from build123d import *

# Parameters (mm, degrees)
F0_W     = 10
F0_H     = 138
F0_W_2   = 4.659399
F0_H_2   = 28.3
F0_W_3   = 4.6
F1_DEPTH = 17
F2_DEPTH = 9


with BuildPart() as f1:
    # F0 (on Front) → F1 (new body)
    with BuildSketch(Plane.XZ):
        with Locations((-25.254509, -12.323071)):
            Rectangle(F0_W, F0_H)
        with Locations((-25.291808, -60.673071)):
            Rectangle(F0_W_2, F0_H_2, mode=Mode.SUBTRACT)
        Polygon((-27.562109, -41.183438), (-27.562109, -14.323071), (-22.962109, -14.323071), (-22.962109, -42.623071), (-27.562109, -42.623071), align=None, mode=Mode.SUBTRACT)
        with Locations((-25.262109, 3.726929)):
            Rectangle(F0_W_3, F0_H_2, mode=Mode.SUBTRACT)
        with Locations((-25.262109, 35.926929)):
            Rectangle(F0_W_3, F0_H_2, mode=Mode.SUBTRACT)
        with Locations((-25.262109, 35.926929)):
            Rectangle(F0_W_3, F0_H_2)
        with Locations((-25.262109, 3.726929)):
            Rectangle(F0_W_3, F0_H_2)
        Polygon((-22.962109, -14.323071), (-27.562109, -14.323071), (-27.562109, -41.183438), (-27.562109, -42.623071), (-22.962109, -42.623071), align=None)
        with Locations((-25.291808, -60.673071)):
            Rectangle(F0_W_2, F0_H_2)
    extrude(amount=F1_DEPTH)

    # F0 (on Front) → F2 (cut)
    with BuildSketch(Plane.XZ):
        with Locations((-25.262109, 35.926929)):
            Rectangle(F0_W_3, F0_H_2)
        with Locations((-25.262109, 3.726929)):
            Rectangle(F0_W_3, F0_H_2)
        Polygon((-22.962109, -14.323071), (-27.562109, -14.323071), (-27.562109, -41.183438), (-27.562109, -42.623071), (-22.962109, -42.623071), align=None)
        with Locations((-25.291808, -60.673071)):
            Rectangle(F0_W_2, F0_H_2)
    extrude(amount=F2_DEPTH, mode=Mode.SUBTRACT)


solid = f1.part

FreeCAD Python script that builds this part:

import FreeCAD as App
import Part
import Sketcher

doc = App.newDocument("Part")
body = doc.addObject("PartDesign::Body", "Body")

# Sketch on XZ plane
sketch1 = doc.addObject("Sketcher::SketchObject", "Sketch")
body.addObject(sketch1)
sketch1.AttachmentSupport = (doc.XZ_Plane, [""])
sketch1.MapMode = "FlatFace"
sketch1.addGeometry(Part.LineSegment(App.Vector(-30, 57, 0), App.Vector(-30, -81, 0)), False)
sketch1.addGeometry(Part.LineSegment(App.Vector(-30, -81, 0), App.Vector(-20, -81, 0)), False)
sketch1.addGeometry(Part.LineSegment(App.Vector(-20, -81, 0), App.Vector(-20, 57, 0)), False)
sketch1.addGeometry(Part.LineSegment(App.Vector(-20, 57, 0), App.Vector(-30, 57, 0)), False)
sketch1.addConstraint(Sketcher.Constraint("Coincident", 0, 2, 1, 1))
sketch1.addConstraint(Sketcher.Constraint("Coincident", 1, 2, 2, 1))
sketch1.addConstraint(Sketcher.Constraint("Coincident", 2, 2, 3, 1))
sketch1.addConstraint(Sketcher.Constraint("Coincident", 3, 2, 0, 1))
sketch1.addConstraint(Sketcher.Constraint("Vertical", 0))
sketch1.addConstraint(Sketcher.Constraint("Horizontal", 1))
sketch1.addConstraint(Sketcher.Constraint("Vertical", 2))
sketch1.addConstraint(Sketcher.Constraint("Horizontal", 3))
sketch1.addConstraint(Sketcher.Constraint("DistanceX", 1, 1, 1, 2, 10.0))
sketch1.addConstraint(Sketcher.Constraint("DistanceY", 0, 2, 0, 1, 138.0))
sketch1.addConstraint(Sketcher.Constraint("DistanceX", 0, 2, -1, 1, 30.254509))
sketch1.addConstraint(Sketcher.Constraint("DistanceY", 0, 2, -1, 1, 81.323071))
pad1 = doc.addObject("PartDesign::Pad", "Pad")
body.addObject(pad1)
pad1.Profile = sketch1
pad1.Length = 17

# Sketch on XZ plane
sketch2 = doc.addObject("Sketcher::SketchObject", "Sketch001")
body.addObject(sketch2)
sketch2.AttachmentSupport = (doc.XZ_Plane, [""])
sketch2.MapMode = "FlatFace"
sketch2.addGeometry(Part.LineSegment(App.Vector(-27.6, 50.1, 0), App.Vector(-27.6, 21.8, 0)), False)
sketch2.addGeometry(Part.LineSegment(App.Vector(-27.6, 21.8, 0), App.Vector(-23, 21.8, 0)), False)
sketch2.addGeometry(Part.LineSegment(App.Vector(-23, 21.8, 0), App.Vector(-23, 50.1, 0)), False)
sketch2.addGeometry(Part.LineSegment(App.Vector(-23, 50.1, 0), App.Vector(-27.6, 50.1, 0)), False)
sketch2.addGeometry(Part.LineSegment(App.Vector(-27.6, 17.9, 0), App.Vector(-27.6, -10.4, 0)), False)
sketch2.addGeometry(Part.LineSegment(App.Vector(-27.6, -10.4, 0), App.Vector(-23, -10.4, 0)), False)
sketch2.addGeometry(Part.LineSegment(App.Vector(-23, -10.4, 0), App.Vector(-23, 17.9, 0)), False)
sketch2.addGeometry(Part.LineSegment(App.Vector(-23, 17.9, 0), App.Vector(-27.6, 17.9, 0)), False)
sketch2.addGeometry(Part.LineSegment(App.Vector(-23, -14.3, 0), App.Vector(-27.6, -14.3, 0)), False)
sketch2.addGeometry(Part.LineSegment(App.Vector(-27.6, -14.3, 0), App.Vector(-27.6, -42.6, 0)), False)
sketch2.addGeometry(Part.LineSegment(App.Vector(-27.6, -42.6, 0), App.Vector(-23, -42.6, 0)), False)
sketch2.addGeometry(Part.LineSegment(App.Vector(-23, -42.6, 0), App.Vector(-23, -14.3, 0)), False)
sketch2.addGeometry(Part.LineSegment(App.Vector(-27.6, -46.5, 0), App.Vector(-27.6, -74.8, 0)), False)
sketch2.addGeometry(Part.LineSegment(App.Vector(-27.6, -74.8, 0), App.Vector(-23, -74.8, 0)), False)
sketch2.addGeometry(Part.LineSegment(App.Vector(-23, -74.8, 0), App.Vector(-23, -46.5, 0)), False)
sketch2.addGeometry(Part.LineSegment(App.Vector(-23, -46.5, 0), App.Vector(-27.6, -46.5, 0)), False)
sketch2.addConstraint(Sketcher.Constraint("Coincident", 0, 2, 1, 1))
sketch2.addConstraint(Sketcher.Constraint("Coincident", 1, 2, 2, 1))
sketch2.addConstraint(Sketcher.Constraint("Coincident", 2, 2, 3, 1))
sketch2.addConstraint(Sketcher.Constraint("Coincident", 3, 2, 0, 1))
sketch2.addConstraint(Sketcher.Constraint("Coincident", 4, 2, 5, 1))
sketch2.addConstraint(Sketcher.Constraint("Coincident", 5, 2, 6, 1))
sketch2.addConstraint(Sketcher.Constraint("Coincident", 6, 2, 7, 1))
sketch2.addConstraint(Sketcher.Constraint("Coincident", 7, 2, 4, 1))
sketch2.addConstraint(Sketcher.Constraint("Coincident", 8, 2, 9, 1))
sketch2.addConstraint(Sketcher.Constraint("Coincident", 9, 2, 10, 1))
sketch2.addConstraint(Sketcher.Constraint("Coincident", 10, 2, 11, 1))
sketch2.addConstraint(Sketcher.Constraint("Coincident", 11, 2, 8, 1))
sketch2.addConstraint(Sketcher.Constraint("Coincident", 12, 2, 13, 1))
sketch2.addConstraint(Sketcher.Constraint("Coincident", 13, 2, 14, 1))
sketch2.addConstraint(Sketcher.Constraint("Coincident", 14, 2, 15, 1))
sketch2.addConstraint(Sketcher.Constraint("Coincident", 15, 2, 12, 1))
sketch2.addConstraint(Sketcher.Constraint("Vertical", 0))
sketch2.addConstraint(Sketcher.Constraint("Horizontal", 1))
sketch2.addConstraint(Sketcher.Constraint("Vertical", 2))
sketch2.addConstraint(Sketcher.Constraint("Horizontal", 3))
sketch2.addConstraint(Sketcher.Constraint("Vertical", 4))
sketch2.addConstraint(Sketcher.Constraint("Horizontal", 5))
sketch2.addConstraint(Sketcher.Constraint("Vertical", 6))
sketch2.addConstraint(Sketcher.Constraint("Horizontal", 7))
sketch2.addConstraint(Sketcher.Constraint("Horizontal", 8))
sketch2.addConstraint(Sketcher.Constraint("Vertical", 9))
sketch2.addConstraint(Sketcher.Constraint("Horizontal", 10))
sketch2.addConstraint(Sketcher.Constraint("Vertical", 11))
sketch2.addConstraint(Sketcher.Constraint("Vertical", 12))
sketch2.addConstraint(Sketcher.Constraint("Horizontal", 13))
sketch2.addConstraint(Sketcher.Constraint("Vertical", 14))
sketch2.addConstraint(Sketcher.Constraint("Horizontal", 15))
sketch2.addConstraint(Sketcher.Constraint("Vertical", 3, 2, 4, 2))
sketch2.addConstraint(Sketcher.Constraint("Vertical", 2, 2, 5, 2))
sketch2.addConstraint(Sketcher.Constraint("Vertical", 7, 2, 8, 2))
sketch2.addConstraint(Sketcher.Constraint("Vertical", 6, 2, 10, 2))
sketch2.addConstraint(Sketcher.Constraint("Vertical", 11, 2, 13, 2))
sketch2.addConstraint(Sketcher.Constraint("Equal", 2, 4))
sketch2.addConstraint(Sketcher.Constraint("Equal", 6, 9))
sketch2.addConstraint(Sketcher.Constraint("Equal", 11, 12))
sketch2.addConstraint(Sketcher.Constraint("DistanceX", 1, 1, 1, 2, 4.6))
sketch2.addConstraint(Sketcher.Constraint("DistanceY", 0, 2, 0, 1, 28.3))
sketch2.addConstraint(Sketcher.Constraint("DistanceY", 4, 2, 0, 2, 32.2))
sketch2.addConstraint(Sketcher.Constraint("DistanceY", 8, 2, 4, 2, 3.9))
sketch2.addConstraint(Sketcher.Constraint("DistanceY", 12, 2, 9, 2, 32.2))
sketch2.addConstraint(Sketcher.Constraint("DistanceX", 13, 1, 13, 2, 4.659399))
sketch2.addConstraint(Sketcher.Constraint("DistanceX", 0, 2, -1, 1, 27.562109))
sketch2.addConstraint(Sketcher.Constraint("DistanceY", -1, 1, 0, 2, 21.776929))
pocket1 = doc.addObject("PartDesign::Pocket", "Pocket")
body.addObject(pocket1)
pocket1.Profile = sketch2
pocket1.Length = 9
pocket1.Reversed = True

doc.recompute()
